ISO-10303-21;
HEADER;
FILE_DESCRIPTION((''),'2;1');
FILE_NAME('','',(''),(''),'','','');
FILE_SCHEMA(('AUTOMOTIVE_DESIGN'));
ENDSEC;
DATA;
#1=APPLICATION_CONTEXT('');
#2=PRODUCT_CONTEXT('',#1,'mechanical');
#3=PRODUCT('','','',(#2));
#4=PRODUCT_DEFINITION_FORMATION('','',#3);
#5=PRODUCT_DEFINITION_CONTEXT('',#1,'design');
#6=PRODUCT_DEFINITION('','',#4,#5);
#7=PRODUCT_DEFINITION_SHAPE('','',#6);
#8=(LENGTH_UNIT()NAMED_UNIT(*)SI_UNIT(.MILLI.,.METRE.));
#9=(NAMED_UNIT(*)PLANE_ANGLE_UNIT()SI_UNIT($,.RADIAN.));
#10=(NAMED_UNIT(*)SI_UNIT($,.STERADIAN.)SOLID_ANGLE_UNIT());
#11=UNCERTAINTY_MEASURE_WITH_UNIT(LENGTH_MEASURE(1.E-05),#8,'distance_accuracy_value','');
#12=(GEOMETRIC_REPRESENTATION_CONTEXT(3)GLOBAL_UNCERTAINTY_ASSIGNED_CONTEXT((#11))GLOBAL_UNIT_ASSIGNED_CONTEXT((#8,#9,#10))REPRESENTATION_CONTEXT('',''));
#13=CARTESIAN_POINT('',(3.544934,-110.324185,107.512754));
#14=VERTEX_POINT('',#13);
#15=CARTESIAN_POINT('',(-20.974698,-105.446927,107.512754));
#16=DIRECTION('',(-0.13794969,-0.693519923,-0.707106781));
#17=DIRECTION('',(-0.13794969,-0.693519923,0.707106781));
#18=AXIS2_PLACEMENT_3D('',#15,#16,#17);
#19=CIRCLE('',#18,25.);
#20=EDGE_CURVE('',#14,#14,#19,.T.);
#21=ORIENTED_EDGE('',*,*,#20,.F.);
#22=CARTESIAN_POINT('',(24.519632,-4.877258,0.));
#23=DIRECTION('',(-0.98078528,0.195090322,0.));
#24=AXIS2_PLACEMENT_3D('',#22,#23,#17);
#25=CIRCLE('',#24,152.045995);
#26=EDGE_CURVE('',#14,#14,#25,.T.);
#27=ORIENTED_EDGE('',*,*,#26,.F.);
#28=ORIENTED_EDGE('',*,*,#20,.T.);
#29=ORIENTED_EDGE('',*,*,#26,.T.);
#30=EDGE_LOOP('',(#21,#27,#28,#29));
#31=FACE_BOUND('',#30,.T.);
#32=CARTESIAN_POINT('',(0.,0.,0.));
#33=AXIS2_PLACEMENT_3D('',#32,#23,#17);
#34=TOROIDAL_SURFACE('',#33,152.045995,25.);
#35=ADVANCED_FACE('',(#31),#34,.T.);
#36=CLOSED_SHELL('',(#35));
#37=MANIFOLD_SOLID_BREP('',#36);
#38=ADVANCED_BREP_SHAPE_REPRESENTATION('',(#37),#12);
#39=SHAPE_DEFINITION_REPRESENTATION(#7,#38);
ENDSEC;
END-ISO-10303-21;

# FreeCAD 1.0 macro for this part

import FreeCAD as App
import Part
import Sketcher

doc = App.newDocument("Part")
body = doc.addObject("PartDesign::Body", "Body")

sketch1 = doc.addObject("Sketcher::SketchObject", "Sketch")
body.addObject(sketch1)
sketch1.AttachmentSupport = (doc.YZ_Plane, [""])
sketch1.MapMode = "FlatFace"
sketch1.addGeometry(Part.Circle(App.Vector(0, -152, 0), App.Vector(0, 0, 1), 25), False)
sketch1.addConstraint([
    Sketcher.Constraint("PointOnObject", 0, 3, -2),
    Sketcher.Constraint("Diameter", 0, 50.0),
    Sketcher.Constraint("DistanceY", 0, 3, -1, 1, 152.045995),
])

sketch2 = doc.addObject("Sketcher::SketchObject", "Sketch001")
body.addObject(sketch2)
sketch2.AttachmentSupport = (doc.XZ_Plane, [""])
sketch2.MapMode = "FlatFace"
sketch2.addGeometry(Part.Circle(App.Vector(0, 0, 0), App.Vector(0, 0, 1), 152), False)
sketch2.addConstraint([
    Sketcher.Constraint("Coincident", 0, 3, -1, 1),
    Sketcher.Constraint("Diameter", 0, 303.9872),
])
doc.recompute()

additivepipe = doc.addObject("PartDesign::AdditivePipe", "AdditivePipe")
body.addObject(additivepipe)
additivepipe.Profile = sketch1
additivepipe.Spine = (sketch2, ["Edge1"])
body2 = doc.addObject("PartDesign::Body", "Body001")
doc.recompute()

body.Placement = App.Placement(App.Vector(0, 0, 0), App.Rotation(App.Vector(0, -1, 0), 45))
boolean = doc.addObject("PartDesign::Boolean", "Boolean")
body2.addObject(boolean)
boolean.Type = "Fuse"
boolean.addObjects([body])
body3 = doc.addObject("PartDesign::Body", "Body002")
doc.recompute()

body2.Placement = App.Placement(App.Vector(0, 0, 0), App.Rotation(App.Vector(0, 0, -1), 101.25))
boolean2 = doc.addObject("PartDesign::Boolean", "Boolean001")
body3.addObject(boolean2)
boolean2.Type = "Fuse"
boolean2.addObjects([body2])

doc.recompute()
